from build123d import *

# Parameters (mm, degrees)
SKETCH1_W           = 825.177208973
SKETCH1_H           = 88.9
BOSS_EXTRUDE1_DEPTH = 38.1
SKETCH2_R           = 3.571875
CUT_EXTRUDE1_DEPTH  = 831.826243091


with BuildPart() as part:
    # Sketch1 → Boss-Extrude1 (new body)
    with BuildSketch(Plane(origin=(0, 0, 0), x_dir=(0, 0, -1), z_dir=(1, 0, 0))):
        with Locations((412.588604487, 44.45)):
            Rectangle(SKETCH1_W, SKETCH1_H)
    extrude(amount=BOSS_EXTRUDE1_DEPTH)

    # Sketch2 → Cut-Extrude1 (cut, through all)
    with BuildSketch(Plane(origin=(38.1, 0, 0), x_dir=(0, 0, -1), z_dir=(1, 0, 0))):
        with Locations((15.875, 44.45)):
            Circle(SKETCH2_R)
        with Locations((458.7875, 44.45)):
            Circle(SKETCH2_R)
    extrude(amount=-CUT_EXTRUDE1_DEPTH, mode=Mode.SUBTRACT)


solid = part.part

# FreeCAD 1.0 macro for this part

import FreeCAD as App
import Part
import Sketcher
from FreeCAD import Vector
Q = App.Units.Quantity


def add_polygon(sketch, points):
    """Adds a closed chain of lines whose ends are joined by coincident constraints."""
    first, n = sketch.GeometryCount, len(points)
    for a, b in zip(points, points[1:] + points[:1]):
        sketch.addGeometry(Part.LineSegment(App.Vector(*a, 0), App.Vector(*b, 0)), False)
    for i in range(n):
        sketch.addConstraint(Sketcher.Constraint("Coincident", first + i, 2, first + (i + 1) % n, 1))

doc = App.newDocument("Part")
body = doc.addObject("PartDesign::Body", "Body")

# Sketch on YZ plane
sketch1 = body.newObject("Sketcher::SketchObject", "Sketch")
sketch1.AttachmentSupport = (doc.getObject("YZ_Plane"), [""])
sketch1.MapMode = "FlatFace"
add_polygon(sketch1, [(88.9, 0), (0, 0), (0, -825.177209), (88.9, -825.177209)])  # lines 0-3
sketch1.addConstraint([
    Sketcher.Constraint("Horizontal", 0),
    Sketcher.Constraint("Vertical", 1),
    Sketcher.Constraint("Horizontal", 2),
    Sketcher.Constraint("Vertical", 3),
    Sketcher.Constraint("Coincident", 0, 2, -1, 1),
    Sketcher.Constraint("DistanceX", 0, 2, 0, 1, Q("3.5 in")),
    Sketcher.Constraint("DistanceY", 1, 2, 1, 1, Q("825.177209 mm")),
])
pad1 = body.newObject("PartDesign::Pad", "Pad")
pad1.Profile = sketch1
pad1.Length = Q("1.5 in")

# Sketch on YZ plane
sketch2 = body.newObject("Sketcher::SketchObject", "Sketch001")
sketch2.AttachmentSupport = (doc.getObject("YZ_Plane"), [""])
sketch2.MapMode = "FlatFace"
sketch2.AttachmentOffset = App.Placement(Vector(0, 0, 1.5 * 25.4), App.Rotation())
sketch2.addGeometry([
    Part.Circle(Vector(44.45, -15.875, 0), Vector(0, 0, 1), 3.571875),
    Part.Circle(Vector(44.45, -458.7875, 0), Vector(0, 0, 1), 3.571875),
], False)
sketch2.addConstraint([
    Sketcher.Constraint("Equal", 0, 1),
    Sketcher.Constraint("Vertical", 0, 3, 1, 3),
    Sketcher.Constraint("Diameter", 0, Q("0.28125 in")),
    Sketcher.Constraint("DistanceX", -1, 1, 0, 3, Q("1.75 in")),
    Sketcher.Constraint("DistanceY", 0, 3, -1, 1, Q("0.625 in")),
    Sketcher.Constraint("DistanceY", 1, 3, -1, 1, Q("18.0625 in")),
])
pocket1 = body.newObject("PartDesign::Pocket", "Pocket")
pocket1.Profile = sketch2
pocket1.Type = "ThroughAll"

doc.recompute()
